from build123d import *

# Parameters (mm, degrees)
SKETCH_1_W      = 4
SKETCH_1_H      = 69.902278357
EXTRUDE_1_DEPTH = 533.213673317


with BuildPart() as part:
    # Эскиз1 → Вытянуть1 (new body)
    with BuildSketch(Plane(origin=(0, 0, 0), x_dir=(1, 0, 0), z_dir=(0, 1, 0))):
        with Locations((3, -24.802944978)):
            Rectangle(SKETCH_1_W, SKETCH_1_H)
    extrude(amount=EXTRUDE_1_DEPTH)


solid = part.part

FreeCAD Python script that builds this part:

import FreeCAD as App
import Part
import Sketcher

V = App.Vector
Q = App.Units.Quantity


def add_polygon(sketch, points):
    """Adds a closed chain of lines whose ends are joined by coincident constraints."""
    first, n = sketch.GeometryCount, len(points)
    for a, b in zip(points, points[1:] + points[:1]):
        sketch.addGeometry(Part.LineSegment(App.Vector(*a, 0), App.Vector(*b, 0)), False)
    for i in range(n):
        sketch.addConstraint(Sketcher.Constraint("Coincident", first + i, 2, first + (i + 1) % n, 1))

doc = App.newDocument("Part")
body = doc.addObject("PartDesign::Body", "Body")

sketch1 = body.newObject("Sketcher::SketchObject", "Sketch")
sketch1.AttachmentSupport = (doc.getObject("XZ_Plane"), [""])
sketch1.MapMode = "FlatFace"
add_polygon(sketch1, [(1, -10.1), (1, 59.8), (5, 59.8), (5, -10.1)])
sketch1.addConstraint(Sketcher.Constraint("Vertical", 0))
sketch1.addConstraint(Sketcher.Constraint("Horizontal", 1))
sketch1.addConstraint(Sketcher.Constraint("Vertical", 2))
sketch1.addConstraint(Sketcher.Constraint("Horizontal", 3))
sketch1.addConstraint(Sketcher.Constraint("DistanceX", 1, 1, 1, 2, Q("4 mm")))
sketch1.addConstraint(Sketcher.Constraint("DistanceX", -1, 1, 0, 2, Q("1 mm")))
sketch1.addConstraint(Sketcher.Constraint("DistanceY", 0, 1, 0, 2, Q("69.902278 mm")))
sketch1.addConstraint(Sketcher.Constraint("DistanceY", -1, 1, 0, 2, Q("59.754084 mm")))
pad1 = body.newObject("PartDesign::Pad", "Pad")
pad1.Profile = sketch1
pad1.Length = 533.213673
pad1.Reversed = True

doc.recompute()
